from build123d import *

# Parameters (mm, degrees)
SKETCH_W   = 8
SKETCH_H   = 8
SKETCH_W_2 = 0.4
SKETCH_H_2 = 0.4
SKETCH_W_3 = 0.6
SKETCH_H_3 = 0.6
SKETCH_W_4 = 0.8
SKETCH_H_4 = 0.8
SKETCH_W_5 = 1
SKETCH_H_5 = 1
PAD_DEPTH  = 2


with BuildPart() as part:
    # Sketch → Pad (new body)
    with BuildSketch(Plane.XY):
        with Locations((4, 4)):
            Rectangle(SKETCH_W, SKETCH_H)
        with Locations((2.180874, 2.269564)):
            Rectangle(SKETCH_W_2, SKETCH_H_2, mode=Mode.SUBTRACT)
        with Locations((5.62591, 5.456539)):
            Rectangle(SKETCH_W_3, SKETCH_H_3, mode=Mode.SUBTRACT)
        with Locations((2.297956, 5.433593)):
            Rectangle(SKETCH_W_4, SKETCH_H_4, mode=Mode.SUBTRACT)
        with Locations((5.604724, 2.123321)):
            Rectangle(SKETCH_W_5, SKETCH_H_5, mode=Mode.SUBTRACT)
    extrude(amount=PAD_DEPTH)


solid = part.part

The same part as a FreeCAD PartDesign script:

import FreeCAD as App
import Part
import Sketcher
Q = App.Units.Quantity


def add_polygon(sketch, points):
    """Adds a closed chain of lines whose ends are joined by coincident constraints."""
    first, n = sketch.GeometryCount, len(points)
    for a, b in zip(points, points[1:] + points[:1]):
        sketch.addGeometry(Part.LineSegment(App.Vector(*a, 0), App.Vector(*b, 0)), False)
    for i in range(n):
        sketch.addConstraint(Sketcher.Constraint("Coincident", first + i, 2, first + (i + 1) % n, 1))

doc = App.newDocument("Part")
params = doc.addObject("Spreadsheet::Sheet", "Params")
for row, (alias, value) in enumerate([
    ("sketch1_width", "8 mm"),
    ("sketch1_width2", "1 mm"),
    ("sketch1_width3", "0.4 mm"),
    ("sketch1_width4", "0.8 mm"),
    ("sketch1_width5", "0.6 mm"),
    ("pad1_length", "2 mm"),
], start=1):
    params.set(f"A{row}", alias)
    params.set(f"B{row}", "=" + value)
    params.setAlias(f"B{row}", alias)

body = doc.addObject("PartDesign::Body", "Body")

# Sketch on XY plane
sketch1 = doc.addObject("Sketcher::SketchObject", "Sketch")
body.addObject(sketch1)
sketch1.AttachmentSupport = (doc.XY_Plane, [""])
sketch1.MapMode = "FlatFace"
add_polygon(sketch1, [(0, 8), (0, 0), (8, 0), (8, 8)])  # lines 0-3
add_polygon(sketch1, [(2.38, 2.07), (1.98, 2.07), (1.98, 2.47), (2.38, 2.47)])  # lines 4-7
add_polygon(sketch1, [(6.1, 1.62), (5.1, 1.62), (5.1, 2.62), (6.1, 2.62)])  # lines 8-11
add_polygon(sketch1, [(2.7, 5.03), (1.9, 5.03), (1.9, 5.83), (2.7, 5.83)])  # lines 12-15
add_polygon(sketch1, [(5.93, 5.16), (5.33, 5.16), (5.33, 5.76), (5.93, 5.76)])  # lines 16-19
sketch1.addConstraint([
    Sketcher.Constraint("Vertical", 0),
    Sketcher.Constraint("Horizontal", 1),
    Sketcher.Constraint("Vertical", 2),
    Sketcher.Constraint("Horizontal", 3),
    Sketcher.Constraint("Horizontal", 4),
    Sketcher.Constraint("Vertical", 5),
    Sketcher.Constraint("Horizontal", 6),
    Sketcher.Constraint("Vertical", 7),
    Sketcher.Constraint("Horizontal", 8),
    Sketcher.Constraint("Vertical", 9),
    Sketcher.Constraint("Horizontal", 10),
    Sketcher.Constraint("Vertical", 11),
    Sketcher.Constraint("Horizontal", 12),
    Sketcher.Constraint("Vertical", 13),
    Sketcher.Constraint("Horizontal", 14),
    Sketcher.Constraint("Vertical", 15),
    Sketcher.Constraint("Horizontal", 16),
    Sketcher.Constraint("Vertical", 17),
    Sketcher.Constraint("Horizontal", 18),
    Sketcher.Constraint("Vertical", 19),
    Sketcher.Constraint("Coincident", 0, 2, -1, 1),
    Sketcher.Constraint("Equal", 3, 0),
    Sketcher.Constraint("Equal", 6, 5),
    Sketcher.Constraint("Equal", 10, 9),
    Sketcher.Constraint("Equal", 14, 13),
    Sketcher.Constraint("Equal", 18, 17),
    Sketcher.Constraint("DistanceX", 1, 1, 1, 2, Q("8 mm")),
    Sketcher.Constraint("DistanceX", 8, 2, 8, 1, Q("1 mm")),
    Sketcher.Constraint("DistanceX", 4, 2, 4, 1, Q("0.4 mm")),
    Sketcher.Constraint("DistanceX", 12, 2, 12, 1, Q("0.8 mm")),
    Sketcher.Constraint("DistanceX", 16, 2, 16, 1, Q("0.6 mm")),
    Sketcher.Constraint("DistanceY", -1, 1, 8, 2, Q("1.623321 mm")),
    Sketcher.Constraint("DistanceX", -1, 1, 16, 2, Q("5.32591 mm")),
    Sketcher.Constraint("DistanceY", -1, 1, 16, 2, Q("5.156539 mm")),
    Sketcher.Constraint("DistanceX", 7, 2, 8, 2, Q("2.72385 mm")),
    Sketcher.Constraint("DistanceX", 12, 2, 5, 2, Q("0.082918 mm")),
    Sketcher.Constraint("DistanceY", 5, 2, 12, 2, Q("2.564029 mm")),
    Sketcher.Constraint("DistanceX", -1, 1, 4, 2, Q("1.980874 mm")),
    Sketcher.Constraint("DistanceY", -1, 1, 4, 2, Q("2.069564 mm")),
])
sketch1.setExpression("Constraints[46]", "Params.sketch1_width")
sketch1.setExpression("Constraints[47]", "Params.sketch1_width2")
sketch1.setExpression("Constraints[48]", "Params.sketch1_width3")
sketch1.setExpression("Constraints[49]", "Params.sketch1_width4")
sketch1.setExpression("Constraints[50]", "Params.sketch1_width5")
pad1 = doc.addObject("PartDesign::Pad", "Pad")
body.addObject(pad1)
pad1.Profile = sketch1
pad1.setExpression("Length", "Params.pad1_length")

doc.recompute()
